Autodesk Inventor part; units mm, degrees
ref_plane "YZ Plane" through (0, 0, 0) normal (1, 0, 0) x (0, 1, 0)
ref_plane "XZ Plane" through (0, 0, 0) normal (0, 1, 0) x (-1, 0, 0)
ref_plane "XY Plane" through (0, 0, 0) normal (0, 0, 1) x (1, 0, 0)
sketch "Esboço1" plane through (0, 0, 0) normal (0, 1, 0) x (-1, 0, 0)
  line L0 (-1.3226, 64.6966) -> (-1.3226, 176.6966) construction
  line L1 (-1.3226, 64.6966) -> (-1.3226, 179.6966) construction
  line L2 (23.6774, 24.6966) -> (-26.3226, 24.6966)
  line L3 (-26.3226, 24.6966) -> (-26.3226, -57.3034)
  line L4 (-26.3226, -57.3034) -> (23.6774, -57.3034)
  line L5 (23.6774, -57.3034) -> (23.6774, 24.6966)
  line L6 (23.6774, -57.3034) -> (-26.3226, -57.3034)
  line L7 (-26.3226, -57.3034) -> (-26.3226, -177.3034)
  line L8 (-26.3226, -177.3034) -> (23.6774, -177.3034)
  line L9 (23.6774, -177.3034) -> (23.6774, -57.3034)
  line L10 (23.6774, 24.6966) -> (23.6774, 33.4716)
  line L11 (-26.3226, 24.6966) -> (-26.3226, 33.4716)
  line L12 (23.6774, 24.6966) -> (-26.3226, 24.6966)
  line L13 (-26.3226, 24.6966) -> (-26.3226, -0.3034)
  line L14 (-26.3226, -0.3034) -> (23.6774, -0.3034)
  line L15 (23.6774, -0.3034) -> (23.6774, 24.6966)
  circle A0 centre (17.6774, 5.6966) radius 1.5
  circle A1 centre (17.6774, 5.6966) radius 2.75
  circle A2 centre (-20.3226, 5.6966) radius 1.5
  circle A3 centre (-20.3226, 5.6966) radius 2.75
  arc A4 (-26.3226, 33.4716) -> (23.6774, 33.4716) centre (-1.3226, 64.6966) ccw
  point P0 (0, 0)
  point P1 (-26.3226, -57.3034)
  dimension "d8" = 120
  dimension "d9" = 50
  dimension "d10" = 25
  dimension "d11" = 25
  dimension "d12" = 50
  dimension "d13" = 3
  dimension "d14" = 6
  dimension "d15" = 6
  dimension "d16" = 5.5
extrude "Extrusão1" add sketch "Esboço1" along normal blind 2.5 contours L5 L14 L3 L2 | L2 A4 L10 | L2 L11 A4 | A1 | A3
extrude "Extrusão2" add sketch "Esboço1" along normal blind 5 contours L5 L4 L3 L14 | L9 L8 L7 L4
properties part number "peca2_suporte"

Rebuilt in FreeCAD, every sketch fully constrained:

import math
import FreeCAD as App
import Part
import Sketcher

V = App.Vector
Q = App.Units.Quantity


def add_polygon(sketch, points):
    """Adds a closed chain of lines whose ends are joined by coincident constraints."""
    first, n = sketch.GeometryCount, len(points)
    for a, b in zip(points, points[1:] + points[:1]):
        sketch.addGeometry(Part.LineSegment(App.Vector(*a, 0), App.Vector(*b, 0)), False)
    for i in range(n):
        sketch.addConstraint(Sketcher.Constraint("Coincident", first + i, 2, first + (i + 1) % n, 1))

doc = App.newDocument("Part")
body = doc.addObject("PartDesign::Body", "Body")

sketch1 = doc.addObject("Sketcher::SketchObject", "Sketch")
body.addObject(sketch1)
sketch1.AttachmentSupport = (doc.XZ_Plane, [""])
sketch1.MapMode = "FlatFace"
sketch1.addGeometry(Part.LineSegment(V(-23.6774, -0.3034, 0), V(-23.6774, 33.4716, 0)), False)
sketch1.addGeometry(Part.ArcOfCircle(Part.Circle(V(1.3226, 64.6966, 0), V(0, 0, 1), 40.000008), math.radians(-128.682178), math.radians(-51.317822)), False)
sketch1.addGeometry(Part.LineSegment(V(26.3226, 33.4716, 0), V(26.3226, -0.3034, 0)), False)
sketch1.addGeometry(Part.LineSegment(V(26.3226, -0.3034, 0), V(-23.6774, -0.3034, 0)), False)
sketch1.addGeometry(Part.Circle(V(20.3226, 5.6966, 0), V(0, 0, 1), 1.5), False)
sketch1.addGeometry(Part.Circle(V(-17.6774, 5.6966, 0), V(0, 0, 1), 1.5), False)
sketch1.addConstraint(Sketcher.Constraint("Coincident", 0, 2, 1, 1))
sketch1.addConstraint(Sketcher.Constraint("Coincident", 1, 2, 2, 1))
sketch1.addConstraint(Sketcher.Constraint("Coincident", 2, 2, 3, 1))
sketch1.addConstraint(Sketcher.Constraint("Coincident", 3, 2, 0, 1))
sketch1.addConstraint(Sketcher.Constraint("Vertical", 0))
sketch1.addConstraint(Sketcher.Constraint("Vertical", 2))
sketch1.addConstraint(Sketcher.Constraint("Horizontal", 3))
sketch1.addConstraint(Sketcher.Constraint("Equal", 4, 5))
sketch1.addConstraint(Sketcher.Constraint("Horizontal", 4, 3, 5, 3))
sketch1.addConstraint(Sketcher.Constraint("Horizontal", 0, 2, 1, 2))
sketch1.addConstraint(Sketcher.Constraint("Diameter", 4, Q("3 mm")))
sketch1.addConstraint(Sketcher.Constraint("DistanceX", 3, 2, 3, 1, Q("50 mm")))
sketch1.addConstraint(Sketcher.Constraint("Radius", 1, Q("40 mm")))
sketch1.addConstraint(Sketcher.Constraint("DistanceX", 0, 2, 5, 3, Q("6 mm")))
sketch1.addConstraint(Sketcher.Constraint("DistanceX", 4, 3, 1, 2, Q("6 mm")))
sketch1.addConstraint(Sketcher.Constraint("DistanceY", 2, 2, 4, 3, Q("6 mm")))
sketch1.addConstraint(Sketcher.Constraint("DistanceY", 4, 3, 1, 3, Q("59 mm")))
sketch1.addConstraint(Sketcher.Constraint("DistanceX", -1, 1, 1, 3, Q("1.3226 mm")))
sketch1.addConstraint(Sketcher.Constraint("DistanceY", -1, 1, 1, 3, Q("64.6966 mm")))
pad1 = doc.addObject("PartDesign::Pad", "Pad")
body.addObject(pad1)
pad1.Profile = sketch1
pad1.Length = 2.5
pad1.Reversed = True

sketch2 = doc.addObject("Sketcher::SketchObject", "Sketch001")
body.addObject(sketch2)
sketch2.AttachmentSupport = (doc.XZ_Plane, [""])
sketch2.MapMode = "FlatFace"
add_polygon(sketch2, [(-23.6774, -0.3034), (26.3226, -0.3034), (26.3226, -177.3034), (-23.6774, -177.3034)])
sketch2.addConstraint(Sketcher.Constraint("Horizontal", 0))
sketch2.addConstraint(Sketcher.Constraint("Vertical", 1))
sketch2.addConstraint(Sketcher.Constraint("Horizontal", 2))
sketch2.addConstraint(Sketcher.Constraint("Vertical", 3))
sketch2.addConstraint(Sketcher.Constraint("DistanceX", 0, 1, 0, 2, Q("50 mm")))
sketch2.addConstraint(Sketcher.Constraint("DistanceY", 1, 2, 1, 1, Q("177 mm")))
sketch2.addConstraint(Sketcher.Constraint("DistanceX", -1, 1, 0, 2, Q("26.3226 mm")))
sketch2.addConstraint(Sketcher.Constraint("DistanceY", 0, 2, -1, 1, Q("0.3034 mm")))
pad2 = doc.addObject("PartDesign::Pad", "Pad001")
body.addObject(pad2)
pad2.Profile = sketch2
pad2.Length = 5
pad2.Reversed = True

doc.recompute()
